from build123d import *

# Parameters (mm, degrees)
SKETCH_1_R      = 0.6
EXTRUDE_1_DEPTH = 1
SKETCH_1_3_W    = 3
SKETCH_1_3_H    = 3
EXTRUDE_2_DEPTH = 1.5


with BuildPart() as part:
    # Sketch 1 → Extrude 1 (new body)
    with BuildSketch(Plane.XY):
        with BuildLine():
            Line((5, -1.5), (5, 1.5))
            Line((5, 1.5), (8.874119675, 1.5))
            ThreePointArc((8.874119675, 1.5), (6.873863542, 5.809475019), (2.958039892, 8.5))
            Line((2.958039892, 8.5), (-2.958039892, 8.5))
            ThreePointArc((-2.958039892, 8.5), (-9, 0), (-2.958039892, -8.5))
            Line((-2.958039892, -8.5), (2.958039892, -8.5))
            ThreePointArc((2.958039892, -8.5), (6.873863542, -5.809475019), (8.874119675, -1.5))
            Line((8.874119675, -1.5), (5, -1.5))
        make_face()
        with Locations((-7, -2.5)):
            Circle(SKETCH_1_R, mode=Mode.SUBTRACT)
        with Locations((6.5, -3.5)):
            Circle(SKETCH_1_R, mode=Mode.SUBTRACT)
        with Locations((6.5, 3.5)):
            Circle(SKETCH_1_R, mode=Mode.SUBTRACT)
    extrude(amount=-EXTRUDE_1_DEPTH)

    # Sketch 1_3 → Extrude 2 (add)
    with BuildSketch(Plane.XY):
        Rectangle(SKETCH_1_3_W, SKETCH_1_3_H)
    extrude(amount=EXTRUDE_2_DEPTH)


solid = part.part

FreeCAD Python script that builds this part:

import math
import FreeCAD as App
import Part
import Sketcher

V = App.Vector
Q = App.Units.Quantity


def add_polygon(sketch, points):
    """Adds a closed chain of lines whose ends are joined by coincident constraints."""
    first, n = sketch.GeometryCount, len(points)
    for a, b in zip(points, points[1:] + points[:1]):
        sketch.addGeometry(Part.LineSegment(App.Vector(*a, 0), App.Vector(*b, 0)), False)
    for i in range(n):
        sketch.addConstraint(Sketcher.Constraint("Coincident", first + i, 2, first + (i + 1) % n, 1))

doc = App.newDocument("Part")
body = doc.addObject("PartDesign::Body", "Body")

sketch1 = body.newObject("Sketcher::SketchObject", "Sketch")
sketch1.AttachmentSupport = (doc.getObject("XY_Plane"), [""])
sketch1.MapMode = "FlatFace"
sketch1.addGeometry(Part.LineSegment(V(5, -1.5, 0), V(5, 1.5, 0)), False)
sketch1.addGeometry(Part.LineSegment(V(5, 1.5, 0), V(8.9, 1.5, 0)), False)
sketch1.addGeometry(Part.ArcOfCircle(Part.Circle(V(0, 0, 0), V(0, 0, 1), 9), math.radians(10), math.radians(71)), False)
sketch1.addGeometry(Part.LineSegment(V(3, 8.5, 0), V(-3, 8.5, 0)), False)
sketch1.addGeometry(Part.ArcOfCircle(Part.Circle(V(0, 0, 0), V(0, 0, 1), 9), math.radians(109), math.radians(251)), False)
sketch1.addGeometry(Part.LineSegment(V(-3, -8.5, 0), V(3, -8.5, 0)), False)
sketch1.addGeometry(Part.ArcOfCircle(Part.Circle(V(0, 0, 0), V(0, 0, 1), 9), math.radians(-71), math.radians(-10)), False)
sketch1.addGeometry(Part.LineSegment(V(8.9, -1.5, 0), V(5, -1.5, 0)), False)
sketch1.addGeometry(Part.Circle(V(-7, -2.5, 0), V(0, 0, 1), 0.6), False)
sketch1.addGeometry(Part.Circle(V(6.5, -3.5, 0), V(0, 0, 1), 0.6), False)
sketch1.addGeometry(Part.Circle(V(6.5, 3.5, 0), V(0, 0, 1), 0.6), False)
sketch1.addConstraint(Sketcher.Constraint("Coincident", 0, 2, 1, 1))
sketch1.addConstraint(Sketcher.Constraint("Coincident", 1, 2, 2, 1))
sketch1.addConstraint(Sketcher.Constraint("Coincident", 2, 2, 3, 1))
sketch1.addConstraint(Sketcher.Constraint("Coincident", 3, 2, 4, 1))
sketch1.addConstraint(Sketcher.Constraint("Coincident", 4, 2, 5, 1))
sketch1.addConstraint(Sketcher.Constraint("Coincident", 5, 2, 6, 1))
sketch1.addConstraint(Sketcher.Constraint("Coincident", 6, 2, 7, 1))
sketch1.addConstraint(Sketcher.Constraint("Coincident", 7, 2, 0, 1))
sketch1.addConstraint(Sketcher.Constraint("Vertical", 0))
sketch1.addConstraint(Sketcher.Constraint("Horizontal", 1))
sketch1.addConstraint(Sketcher.Constraint("Horizontal", 3))
sketch1.addConstraint(Sketcher.Constraint("Horizontal", 5))
sketch1.addConstraint(Sketcher.Constraint("Horizontal", 7))
sketch1.addConstraint(Sketcher.Constraint("Coincident", 2, 3, -1, 1))
sketch1.addConstraint(Sketcher.Constraint("Coincident", 4, 3, -1, 1))
sketch1.addConstraint(Sketcher.Constraint("Coincident", 6, 3, -1, 1))
sketch1.addConstraint(Sketcher.Constraint("Equal", 2, 4))
sketch1.addConstraint(Sketcher.Constraint("Equal", 4, 6))
sketch1.addConstraint(Sketcher.Constraint("Equal", 8, 9))
sketch1.addConstraint(Sketcher.Constraint("Equal", 9, 10))
sketch1.addConstraint(Sketcher.Constraint("Symmetric", 9, 3, 10, 3, -1))
sketch1.addConstraint(Sketcher.Constraint("Vertical", 3, 2, 4, 2))
sketch1.addConstraint(Sketcher.Constraint("Vertical", 1, 2, 6, 2))
sketch1.addConstraint(Sketcher.Constraint("Radius", 2, Q("9 mm")))
sketch1.addConstraint(Sketcher.Constraint("Diameter", 8, Q("1.2 mm")))
sketch1.addConstraint(Sketcher.Constraint("DistanceY", 0, 1, 0, 2, Q("3 mm")))
sketch1.addConstraint(Sketcher.Constraint("DistanceX", 8, 3, -1, 1, Q("7 mm")))
sketch1.addConstraint(Sketcher.Constraint("DistanceX", -1, 1, 0, 2, Q("5 mm")))
sketch1.addConstraint(Sketcher.Constraint("DistanceY", 9, 3, 8, 3, Q("1 mm")))
sketch1.addConstraint(Sketcher.Constraint("DistanceY", 9, 3, 10, 3, Q("7 mm")))
sketch1.addConstraint(Sketcher.Constraint("DistanceY", 10, 3, 2, 2, Q("5 mm")))
sketch1.addConstraint(Sketcher.Constraint("DistanceX", -1, 1, 9, 3, Q("6.5 mm")))
pad1 = body.newObject("PartDesign::Pad", "Pad")
pad1.Profile = sketch1
pad1.Length = 1
pad1.Reversed = True

sketch2 = body.newObject("Sketcher::SketchObject", "Sketch001")
sketch2.AttachmentSupport = (doc.getObject("XY_Plane"), [""])
sketch2.MapMode = "FlatFace"
add_polygon(sketch2, [(-1.5, 1.5), (-1.5, -1.5), (1.5, -1.5), (1.5, 1.5)])
sketch2.addConstraint(Sketcher.Constraint("Vertical", 0))
sketch2.addConstraint(Sketcher.Constraint("Horizontal", 1))
sketch2.addConstraint(Sketcher.Constraint("Vertical", 2))
sketch2.addConstraint(Sketcher.Constraint("Horizontal", 3))
sketch2.addConstraint(Sketcher.Constraint("Symmetric", 0, 2, 2, 2, -1, 1))
sketch2.addConstraint(Sketcher.Constraint("Equal", 3, 0))
sketch2.addConstraint(Sketcher.Constraint("DistanceX", 1, 1, 1, 2, Q("3 mm")))
pad2 = body.newObject("PartDesign::Pad", "Pad001")
pad2.Profile = sketch2
pad2.Length = 1.5

doc.recompute()
